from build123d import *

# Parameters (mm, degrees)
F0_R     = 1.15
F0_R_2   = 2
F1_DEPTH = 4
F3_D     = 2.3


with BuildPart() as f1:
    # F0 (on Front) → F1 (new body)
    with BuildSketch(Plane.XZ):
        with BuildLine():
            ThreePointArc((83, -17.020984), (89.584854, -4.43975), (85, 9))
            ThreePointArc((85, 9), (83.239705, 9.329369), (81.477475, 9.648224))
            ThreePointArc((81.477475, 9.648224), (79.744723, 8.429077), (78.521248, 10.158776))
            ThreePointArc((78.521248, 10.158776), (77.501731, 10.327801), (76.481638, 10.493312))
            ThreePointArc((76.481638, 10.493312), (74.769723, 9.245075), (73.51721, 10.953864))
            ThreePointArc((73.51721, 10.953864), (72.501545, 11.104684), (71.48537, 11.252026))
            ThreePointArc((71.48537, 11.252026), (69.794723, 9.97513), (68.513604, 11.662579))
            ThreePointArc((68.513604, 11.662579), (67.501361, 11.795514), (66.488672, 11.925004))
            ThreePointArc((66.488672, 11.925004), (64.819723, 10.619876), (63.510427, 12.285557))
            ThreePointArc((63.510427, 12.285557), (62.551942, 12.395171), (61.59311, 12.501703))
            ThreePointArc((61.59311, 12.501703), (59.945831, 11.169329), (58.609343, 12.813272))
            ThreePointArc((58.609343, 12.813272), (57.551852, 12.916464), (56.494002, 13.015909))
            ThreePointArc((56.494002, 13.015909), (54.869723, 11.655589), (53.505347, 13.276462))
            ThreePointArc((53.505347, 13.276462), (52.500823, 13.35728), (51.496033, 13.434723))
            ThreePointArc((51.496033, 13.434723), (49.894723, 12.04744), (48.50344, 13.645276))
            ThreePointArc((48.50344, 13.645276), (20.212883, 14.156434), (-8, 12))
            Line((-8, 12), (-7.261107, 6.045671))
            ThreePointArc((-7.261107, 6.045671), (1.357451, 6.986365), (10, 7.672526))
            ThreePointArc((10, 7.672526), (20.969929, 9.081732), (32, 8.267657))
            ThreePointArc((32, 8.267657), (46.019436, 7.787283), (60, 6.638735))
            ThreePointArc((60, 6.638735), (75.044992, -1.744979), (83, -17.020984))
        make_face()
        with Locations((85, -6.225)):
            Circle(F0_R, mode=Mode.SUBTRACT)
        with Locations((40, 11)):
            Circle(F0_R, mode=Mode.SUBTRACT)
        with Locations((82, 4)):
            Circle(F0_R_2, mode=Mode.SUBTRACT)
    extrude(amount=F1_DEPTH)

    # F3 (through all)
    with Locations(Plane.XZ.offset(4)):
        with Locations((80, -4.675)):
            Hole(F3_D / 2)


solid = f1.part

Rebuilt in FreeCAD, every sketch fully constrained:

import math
import FreeCAD as App
import Part
import Sketcher
Q = App.Units.Quantity

doc = App.newDocument("Part")
body = doc.addObject("PartDesign::Body", "Body")

sketch1 = doc.addObject("Sketcher::SketchObject", "Sketch")
body.addObject(sketch1)
sketch1.AttachmentSupport = (doc.XZ_Plane, [""])
sketch1.MapMode = "FlatFace"
sketch1.addGeometry([
    Part.ArcOfCircle(Part.Circle(App.Vector(71.637787, -3.060319, 0), App.Vector(0, 0, 1), 18.000001), math.radians(-50.858776), math.radians(42.068432)),
    Part.ArcOfCircle(Part.Circle(App.Vector(28.94547, -285.711853, 0), App.Vector(0, 0, 1), 299.995311), math.radians(79.23091), math.radians(79.914974)),
    Part.ArcOfCircle(Part.Circle(App.Vector(80, 9.907195, 0), App.Vector(0, 0, 1), 1.5), math.radians(170.344684), math.radians(350.058217)),
    Part.ArcOfCircle(Part.Circle(App.Vector(28.9576, -285.637644, 0), App.Vector(0, 0, 1), 299.920118), math.radians(80.487884), math.radians(80.882732)),
    Part.ArcOfCircle(Part.Circle(App.Vector(75, 10.727294, 0), App.Vector(0, 0, 1), 1.5), math.radians(171.312397), math.radians(351.025912)),
    Part.ArcOfCircle(Part.Circle(App.Vector(28.95434, -285.649947, 0), App.Vector(0, 0, 1), 299.932776), math.radians(81.455576), math.radians(81.847873)),
    Part.ArcOfCircle(Part.Circle(App.Vector(70, 11.461018, 0), App.Vector(0, 0, 1), 1.5), math.radians(172.277564), math.radians(351.991053)),
    Part.ArcOfCircle(Part.Circle(App.Vector(28.93798, -285.768454, 0), App.Vector(0, 0, 1), 300.052411), math.radians(82.420848), math.radians(82.810749)),
    Part.ArcOfCircle(Part.Circle(App.Vector(65, 12.109003, 0), App.Vector(0, 0, 1), 1.5), math.radians(173.240469), math.radians(352.954004)),
    Part.ArcOfCircle(Part.Circle(App.Vector(28.935124, -285.801864, 0), App.Vector(0, 0, 1), 300.085925), math.radians(83.3838), math.radians(83.752196)),
    Part.ArcOfCircle(Part.Circle(App.Vector(60.101616, 12.661217, 0), App.Vector(0, 0, 1), 1.5), math.radians(174.181939), math.radians(353.895464)),
    Part.ArcOfCircle(Part.Circle(App.Vector(28.952503, -285.63403, 0), App.Vector(0, 0, 1), 299.917189), math.radians(84.325123), math.radians(84.731086)),
    Part.ArcOfCircle(Part.Circle(App.Vector(55, 13.149921, 0), App.Vector(0, 0, 1), 1.5), math.radians(175.160745), math.radians(354.87428)),
    Part.ArcOfCircle(Part.Circle(App.Vector(28.945588, -285.704793, 0), App.Vector(0, 0, 1), 299.988287), math.radians(85.303993), math.radians(85.688948)),
    Part.ArcOfCircle(Part.Circle(App.Vector(50, 13.543741, 0), App.Vector(0, 0, 1), 1.5), math.radians(176.118688), math.radians(355.832138)),
    Part.ArcOfCircle(Part.Circle(App.Vector(28.94463, -285.716525, 0), App.Vector(0, 0, 1), 300.000058), math.radians(86.261892), math.radians(97.073861)),
    Part.LineSegment(App.Vector(-8, 12, 0), App.Vector(-7.261107, 6.045671, 0)),
    Part.ArcOfCircle(Part.Circle(App.Vector(28.944651, -285.716798, 0), App.Vector(0, 0, 1), 294.000332), math.radians(93.694558), math.radians(97.073858)),
    Part.ArcOfCircle(Part.Circle(App.Vector(22.457212, -45.898158, 0), App.Vector(0, 0, 1), 55.000003), math.radians(80.008317), math.radians(103.09079)),
    Part.ArcOfCircle(Part.Circle(App.Vector(28.944622, -285.716515, 0), App.Vector(0, 0, 1), 294.000048), math.radians(83.936505), math.radians(89.404546)),
    Part.ArcOfCircle(Part.Circle(App.Vector(53.534009, -22.656159, 0), App.Vector(0, 0, 1), 29.999997), math.radians(10.826708), math.radians(77.553197)),
    Part.Circle(App.Vector(85, -6.225, 0), App.Vector(0, 0, 1), 1.15),
    Part.Circle(App.Vector(40, 11, 0), App.Vector(0, 0, 1), 1.15),
    Part.Circle(App.Vector(82, 4, 0), App.Vector(0, 0, 1), 2),
], False)
sketch1.addConstraint([
    Sketcher.Constraint("Coincident", 0, 2, 1, 1),
    Sketcher.Constraint("Coincident", 1, 2, 2, 2),
    Sketcher.Constraint("Coincident", 2, 1, 3, 1),
    Sketcher.Constraint("Coincident", 3, 2, 4, 2),
    Sketcher.Constraint("Coincident", 4, 1, 5, 1),
    Sketcher.Constraint("Coincident", 5, 2, 6, 2),
    Sketcher.Constraint("Coincident", 6, 1, 7, 1),
    Sketcher.Constraint("Coincident", 7, 2, 8, 2),
    Sketcher.Constraint("Coincident", 8, 1, 9, 1),
    Sketcher.Constraint("Coincident", 9, 2, 10, 2),
    Sketcher.Constraint("Coincident", 10, 1, 11, 1),
    Sketcher.Constraint("Coincident", 11, 2, 12, 2),
    Sketcher.Constraint("Coincident", 12, 1, 13, 1),
    Sketcher.Constraint("Coincident", 13, 2, 14, 2),
    Sketcher.Constraint("Coincident", 14, 1, 15, 1),
    Sketcher.Constraint("Coincident", 15, 2, 16, 1),
    Sketcher.Constraint("Coincident", 16, 2, 17, 2),
    Sketcher.Constraint("Coincident", 17, 1, 18, 2),
    Sketcher.Constraint("Coincident", 18, 1, 19, 2),
    Sketcher.Constraint("Coincident", 19, 1, 20, 2),
    Sketcher.Constraint("Coincident", 20, 1, 0, 1),
    Sketcher.Constraint("Equal", 2, 4),
    Sketcher.Constraint("Equal", 4, 6),
    Sketcher.Constraint("Equal", 6, 8),
    Sketcher.Constraint("Equal", 8, 10),
    Sketcher.Constraint("Equal", 10, 12),
    Sketcher.Constraint("Equal", 12, 14),
    Sketcher.Constraint("Equal", 21, 22),
    Sketcher.Constraint("Vertical", 21, 3, 0, 2),
    Sketcher.Constraint("Diameter", 23, Q("4 mm")),
    Sketcher.Constraint("Radius", 0, Q("18.000001 mm")),
    Sketcher.Constraint("Diameter", 21, Q("2.3 mm")),
    Sketcher.Constraint("Radius", 2, Q("1.5 mm")),
    Sketcher.Constraint("Distance", 16, Q("6 mm")),
    Sketcher.Constraint("DistanceX", -1, 1, 2, 3, Q("80 mm")),
    Sketcher.Constraint("DistanceX", -1, 1, 4, 3, Q("75 mm")),
    Sketcher.Constraint("DistanceX", -1, 1, 6, 3, Q("70 mm")),
    Sketcher.Constraint("DistanceX", -1, 1, 8, 3, Q("65 mm")),
    Sketcher.Constraint("DistanceX", -1, 1, 12, 3, Q("55 mm")),
    Sketcher.Constraint("DistanceX", -1, 1, 14, 3, Q("50 mm")),
    Sketcher.Constraint("DistanceX", -1, 1, 21, 3, Q("85 mm")),
    Sketcher.Constraint("DistanceX", -1, 1, 22, 3, Q("40 mm")),
    Sketcher.Constraint("DistanceY", -1, 1, 22, 3, Q("11 mm")),
    Sketcher.Constraint("DistanceX", -1, 1, 23, 3, Q("82 mm")),
    Sketcher.Constraint("DistanceY", -1, 1, 23, 3, Q("4 mm")),
    Sketcher.Constraint("DistanceY", -1, 1, 0, 2, Q("9 mm")),
    Sketcher.Constraint("DistanceX", 15, 2, -1, 1, Q("8 mm")),
    Sketcher.Constraint("DistanceY", -1, 1, 15, 2, Q("12 mm")),
    Sketcher.Constraint("DistanceX", -1, 1, 17, 1, Q("10 mm")),
    Sketcher.Constraint("DistanceX", -1, 1, 18, 1, Q("32 mm")),
    Sketcher.Constraint("DistanceX", -1, 1, 19, 1, Q("60 mm")),
    Sketcher.Constraint("DistanceX", -1, 1, 20, 1, Q("83 mm")),
    Sketcher.Constraint("Radius", 1, Q("299.995311 mm")),
    Sketcher.Constraint("Radius", 7, Q("300.052411 mm")),
    Sketcher.Constraint("Radius", 11, Q("299.917189 mm")),
    Sketcher.Constraint("Radius", 15, Q("300.000058 mm")),
    Sketcher.Constraint("Radius", 17, Q("294.000332 mm")),
    Sketcher.Constraint("Radius", 19, Q("294.000048 mm")),
    Sketcher.Constraint("DistanceY", 21, 3, -1, 1, Q("6.225 mm")),
    Sketcher.Constraint("Radius", 3, Q("299.920118 mm")),
    Sketcher.Constraint("Radius", 5, Q("299.932776 mm")),
    Sketcher.Constraint("Radius", 9, Q("300.085925 mm")),
    Sketcher.Constraint("Radius", 13, Q("299.988287 mm")),
    Sketcher.Constraint("Radius", 18, Q("55.000003 mm")),
    Sketcher.Constraint("Radius", 20, Q("29.999997 mm")),
    Sketcher.Constraint("DistanceY", 7, 2, 8, 3, Q("0.183999 mm")),
    Sketcher.Constraint("DistanceX", -1, 1, 3, 3, Q("28.9576 mm")),
    Sketcher.Constraint("DistanceY", 2, 3, 4, 3, Q("0.820098 mm")),
    Sketcher.Constraint("DistanceY", 7, 3, 1, 3, Q("0.056601 mm")),
    Sketcher.Constraint("DistanceY", 6, 3, 10, 3, Q("1.2002 mm")),
    Sketcher.Constraint("DistanceY", 18, 3, 14, 3, Q("59.4419 mm")),
    Sketcher.Constraint("DistanceY", 20, 3, 14, 3, Q("36.1999 mm")),
    Sketcher.Constraint("DistanceY", 8, 3, 9, 2, Q("0.3927 mm")),
    Sketcher.Constraint("DistanceY", 12, 3, 13, 2, Q("0.284802 mm")),
    Sketcher.Constraint("DistanceY", 0, 3, -1, 1, Q("3.060319 mm")),
    Sketcher.Constraint("DistanceX", -1, 1, 1, 3, Q("28.94547 mm")),
    Sketcher.Constraint("DistanceX", -1, 1, 5, 3, Q("28.95434 mm")),
    Sketcher.Constraint("DistanceX", -1, 1, 7, 3, Q("28.93798 mm")),
    Sketcher.Constraint("DistanceY", 11, 3, -1, 1, Q("285.63403 mm")),
    Sketcher.Constraint("DistanceY", -1, 1, 12, 3, Q("13.149921 mm")),
    Sketcher.Constraint("DistanceX", -1, 1, 13, 3, Q("28.945588 mm")),
    Sketcher.Constraint("DistanceY", -1, 1, 14, 3, Q("13.543741 mm")),
    Sketcher.Constraint("DistanceX", -1, 1, 15, 3, Q("28.94463 mm")),
    Sketcher.Constraint("DistanceX", -1, 1, 17, 3, Q("28.944651 mm")),
    Sketcher.Constraint("DistanceX", -1, 1, 4, 1, Q("73.51721 mm")),
    Sketcher.Constraint("DistanceY", -1, 1, 6, 1, Q("11.662579 mm")),
    Sketcher.Constraint("DistanceX", -1, 1, 9, 2, Q("61.59311 mm")),
    Sketcher.Constraint("DistanceY", -1, 1, 10, 1, Q("12.813272 mm")),
    Sketcher.Constraint("DistanceY", -1, 1, 16, 2, Q("6.045671 mm")),
    Sketcher.Constraint("DistanceY", 1, 3, 2, 3, Q("295.619048 mm")),
    Sketcher.Constraint("DistanceY", 1, 3, 3, 3, Q("0.07421 mm")),
    Sketcher.Constraint("DistanceY", 9, 3, 7, 3, Q("0.03341 mm")),
])
pad1 = doc.addObject("PartDesign::Pad", "Pad")
body.addObject(pad1)
pad1.Profile = sketch1
pad1.Length = 4

sketch2 = doc.addObject("Sketcher::SketchObject", "Sketch001")
body.addObject(sketch2)
sketch2.AttachmentSupport = (doc.XZ_Plane, [""])
sketch2.MapMode = "FlatFace"
sketch2.AttachmentOffset = App.Placement(App.Vector(0, 0, 4), App.Rotation())
sketch2.addGeometry(Part.Circle(App.Vector(80, -4.675, 0), App.Vector(0, 0, 1), 1.15), False)
sketch2.addConstraint([
    Sketcher.Constraint("Diameter", 0, Q("2.3 mm")),
    Sketcher.Constraint("DistanceX", -1, 1, 0, 3, Q("80 mm")),
    Sketcher.Constraint("DistanceY", 0, 3, -1, 1, Q("4.675 mm")),
])
doc.recompute()
hole = doc.addObject("PartDesign::Hole", "Hole")
body.addObject(hole)
hole.Profile = sketch2
hole.ThreadType = "None"
hole.Diameter = 2.3
hole.DepthType = "ThroughAll"

doc.recompute()
